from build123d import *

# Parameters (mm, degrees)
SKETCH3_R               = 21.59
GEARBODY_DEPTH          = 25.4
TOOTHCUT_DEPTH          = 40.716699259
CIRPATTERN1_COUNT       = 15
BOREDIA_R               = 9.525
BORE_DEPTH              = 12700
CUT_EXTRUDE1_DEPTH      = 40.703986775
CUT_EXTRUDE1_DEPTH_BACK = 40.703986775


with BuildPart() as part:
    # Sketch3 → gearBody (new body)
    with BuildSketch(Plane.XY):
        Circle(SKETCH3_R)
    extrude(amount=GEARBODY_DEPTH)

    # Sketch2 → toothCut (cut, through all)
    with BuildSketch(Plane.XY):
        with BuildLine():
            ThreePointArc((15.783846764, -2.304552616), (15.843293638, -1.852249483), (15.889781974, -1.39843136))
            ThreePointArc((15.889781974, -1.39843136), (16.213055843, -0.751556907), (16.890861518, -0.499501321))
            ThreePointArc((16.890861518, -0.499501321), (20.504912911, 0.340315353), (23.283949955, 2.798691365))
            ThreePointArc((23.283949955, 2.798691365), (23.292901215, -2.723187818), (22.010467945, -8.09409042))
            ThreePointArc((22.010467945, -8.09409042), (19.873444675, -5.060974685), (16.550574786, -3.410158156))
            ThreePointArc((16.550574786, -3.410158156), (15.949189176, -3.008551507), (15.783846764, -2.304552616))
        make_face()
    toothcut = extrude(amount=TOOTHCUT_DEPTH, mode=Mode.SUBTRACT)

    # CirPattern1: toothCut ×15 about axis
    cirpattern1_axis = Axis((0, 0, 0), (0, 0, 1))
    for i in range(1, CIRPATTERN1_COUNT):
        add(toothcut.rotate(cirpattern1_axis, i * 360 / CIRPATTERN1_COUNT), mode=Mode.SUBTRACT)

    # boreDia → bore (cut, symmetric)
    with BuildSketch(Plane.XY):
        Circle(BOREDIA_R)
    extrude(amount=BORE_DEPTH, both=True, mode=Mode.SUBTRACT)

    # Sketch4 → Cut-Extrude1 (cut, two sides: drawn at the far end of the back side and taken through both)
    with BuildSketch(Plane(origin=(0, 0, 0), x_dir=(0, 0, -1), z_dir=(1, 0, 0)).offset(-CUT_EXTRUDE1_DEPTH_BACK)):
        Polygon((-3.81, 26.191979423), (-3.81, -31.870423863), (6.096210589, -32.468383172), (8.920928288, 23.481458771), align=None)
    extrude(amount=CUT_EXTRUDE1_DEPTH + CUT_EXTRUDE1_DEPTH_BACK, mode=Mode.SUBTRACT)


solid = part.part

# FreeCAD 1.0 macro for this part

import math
import FreeCAD as App
import Part
import Sketcher

V = App.Vector
Q = App.Units.Quantity

doc = App.newDocument("Part")
body = doc.addObject("PartDesign::Body", "Body")

# Sketch on XY plane
sketch1 = body.newObject("Sketcher::SketchObject", "Sketch")
sketch1.AttachmentSupport = (doc.getObject("XY_Plane"), [""])
sketch1.MapMode = "FlatFace"
sketch1.addGeometry(Part.Circle(V(0, 0, 0), V(0, 0, 1), 21.59), False)
sketch1.addConstraint(Sketcher.Constraint("Coincident", 0, 3, -1, 1))
sketch1.addConstraint(Sketcher.Constraint("Diameter", 0, Q("1.7 in")))
pad1 = body.newObject("PartDesign::Pad", "Pad")
pad1.Profile = sketch1
pad1.Length = Q("1 in")

# Sketch on XY plane
sketch2 = body.newObject("Sketcher::SketchObject", "Sketch001")
sketch2.AttachmentSupport = (doc.getObject("XY_Plane"), [""])
sketch2.MapMode = "FlatFace"
sketch2.addGeometry(Part.ArcOfCircle(Part.Circle(V(0.000001, 0, 0), V(0, 0, 1), 15.951199), math.radians(-8.30689), math.radians(-5.029541)), False)
sketch2.addGeometry(Part.ArcOfCircle(Part.Circle(V(16.759027, -2.446936, 0), V(0, 0, 1), 0.98552), math.radians(171.69311), math.radians(257.788847)), False)
sketch2.addGeometry(Part.ArcOfCircle(Part.Circle(V(14.95176, -10.798008, 0), V(0, 0, 1), 7.558871), math.radians(20.959898), math.radians(77.788847)), False)
sketch2.addGeometry(Part.ArcOfCircle(Part.Circle(V(0, 0, 0), V(0, 0, 1), 23.451546), math.radians(-20.190404), math.radians(6.853974)), False)
sketch2.addGeometry(Part.ArcOfCircle(Part.Circle(V(17.039307, 7.057912, 0), V(0, 0, 1), 7.558871), math.radians(-91.125277), math.radians(-34.296328)), False)
sketch2.addGeometry(Part.ArcOfCircle(Part.Circle(V(16.871507, -1.484831, 0), V(0, 0, 1), 0.98552), math.radians(88.874723), math.radians(174.970459)), False)
sketch2.addConstraint(Sketcher.Constraint("Tangent", 0, 1, 1, 1))
sketch2.addConstraint(Sketcher.Constraint("Tangent", 1, 2, 2, 2))
sketch2.addConstraint(Sketcher.Constraint("Coincident", 2, 1, 3, 1))
sketch2.addConstraint(Sketcher.Constraint("Coincident", 3, 2, 4, 2))
sketch2.addConstraint(Sketcher.Constraint("Tangent", 4, 1, 5, 1))
sketch2.addConstraint(Sketcher.Constraint("Tangent", 5, 2, 0, 2))
sketch2.addConstraint(Sketcher.Constraint("Coincident", 0, 3, -1, 1))
sketch2.addConstraint(Sketcher.Constraint("Coincident", 3, 3, -1, 1))
sketch2.addConstraint(Sketcher.Constraint("Equal", 2, 4))
sketch2.addConstraint(Sketcher.Constraint("Equal", 1, 5))
sketch2.addConstraint(Sketcher.Constraint("Radius", 0, Q("0.628 in")))
sketch2.addConstraint(Sketcher.Constraint("Radius", 1, Q("0.0388 in")))
sketch2.addConstraint(Sketcher.Constraint("Radius", 2, Q("7.558871 mm")))
sketch2.addConstraint(Sketcher.Constraint("Radius", 3, Q("23.451546 mm")))
sketch2.addConstraint(Sketcher.Constraint("DistanceY", 4, 1, -1, 1, Q("0.499501 mm")))
sketch2.addConstraint(Sketcher.Constraint("DistanceX", 5, 3, 4, 3, Q("0.167799 mm")))
sketch2.addConstraint(Sketcher.Constraint("DistanceX", -1, 1, 2, 3, Q("14.95176 mm")))
sketch2.addConstraint(Sketcher.Constraint("DistanceY", 1, 2, -1, 1, Q("3.410158 mm")))
pocket1 = body.newObject("PartDesign::Pocket", "Pocket")
pocket1.Profile = sketch2
pocket1.Type = "ThroughAll"
pocket1.Reversed = True
doc.recompute()

polarpattern = body.newObject("PartDesign::PolarPattern", "PolarPattern")
polarpattern.Originals = [pocket1]
polarpattern.Axis = (doc.getObject("Z_Axis"), [""])
polarpattern.Angle = 360
polarpattern.Occurrences = 15
body.Tip = polarpattern

# Sketch on XY plane
sketch3 = body.newObject("Sketcher::SketchObject", "Sketch002")
sketch3.AttachmentSupport = (doc.getObject("XY_Plane"), [""])
sketch3.MapMode = "FlatFace"
sketch3.addGeometry(Part.Circle(V(0, 0, 0), V(0, 0, 1), 9.525), False)
sketch3.addConstraint(Sketcher.Constraint("Coincident", 0, 3, -1, 1))
sketch3.addConstraint(Sketcher.Constraint("Diameter", 0, Q("0.75 in")))
pocket2 = body.newObject("PartDesign::Pocket", "Pocket001")
pocket2.Profile = sketch3
pocket2.Length = Q("1000 in")
pocket2.Midplane = True

# Sketch on YZ plane
sketch4 = body.newObject("Sketcher::SketchObject", "Sketch003")
sketch4.AttachmentSupport = (doc.getObject("YZ_Plane"), [""])
sketch4.MapMode = "FlatFace"
sketch4.addGeometry(Part.LineSegment(V(26.191979, 3.81, 0), V(-31.870424, 3.81, 0)), False)
sketch4.addGeometry(Part.LineSegment(V(-31.870424, 3.81, 0), V(-32.468383, -6.096211, 0)), False)
sketch4.addGeometry(Part.LineSegment(V(-32.468383, -6.096211, 0), V(23.481459, -8.920928, 0)), False)
sketch4.addGeometry(Part.LineSegment(V(23.481459, -8.920928, 0), V(26.191979, 3.81, 0)), False)
sketch4.addConstraint(Sketcher.Constraint("Coincident", 0, 2, 1, 1))
sketch4.addConstraint(Sketcher.Constraint("Coincident", 1, 2, 2, 1))
sketch4.addConstraint(Sketcher.Constraint("Coincident", 2, 2, 3, 1))
sketch4.addConstraint(Sketcher.Constraint("Coincident", 3, 2, 0, 1))
sketch4.addConstraint(Sketcher.Constraint("Horizontal", 0))
sketch4.addConstraint(Sketcher.Constraint("DistanceY", -1, 1, 0, 2, Q("0.15 in")))
sketch4.addConstraint(Sketcher.Constraint("Distance", 2, Q("56.021102 mm")))
sketch4.addConstraint(Sketcher.Constraint("Distance", 1, Q("9.924241 mm")))
sketch4.addConstraint(Sketcher.Constraint("DistanceX", 0, 2, 0, 1, Q("58.062403 mm")))
sketch4.addConstraint(Sketcher.Constraint("DistanceY", 1, 2, -1, 1, Q("6.096211 mm")))
sketch4.addConstraint(Sketcher.Constraint("DistanceX", -1, 1, 2, 2, Q("23.481459 mm")))
sketch4.addConstraint(Sketcher.Constraint("DistanceY", 2, 2, -1, 1, Q("8.920928 mm")))
pocket3 = body.newObject("PartDesign::Pocket", "Pocket002")
pocket3.Profile = sketch4
pocket3.Type = "ThroughAll"
pocket3.Midplane = True

doc.recompute()
